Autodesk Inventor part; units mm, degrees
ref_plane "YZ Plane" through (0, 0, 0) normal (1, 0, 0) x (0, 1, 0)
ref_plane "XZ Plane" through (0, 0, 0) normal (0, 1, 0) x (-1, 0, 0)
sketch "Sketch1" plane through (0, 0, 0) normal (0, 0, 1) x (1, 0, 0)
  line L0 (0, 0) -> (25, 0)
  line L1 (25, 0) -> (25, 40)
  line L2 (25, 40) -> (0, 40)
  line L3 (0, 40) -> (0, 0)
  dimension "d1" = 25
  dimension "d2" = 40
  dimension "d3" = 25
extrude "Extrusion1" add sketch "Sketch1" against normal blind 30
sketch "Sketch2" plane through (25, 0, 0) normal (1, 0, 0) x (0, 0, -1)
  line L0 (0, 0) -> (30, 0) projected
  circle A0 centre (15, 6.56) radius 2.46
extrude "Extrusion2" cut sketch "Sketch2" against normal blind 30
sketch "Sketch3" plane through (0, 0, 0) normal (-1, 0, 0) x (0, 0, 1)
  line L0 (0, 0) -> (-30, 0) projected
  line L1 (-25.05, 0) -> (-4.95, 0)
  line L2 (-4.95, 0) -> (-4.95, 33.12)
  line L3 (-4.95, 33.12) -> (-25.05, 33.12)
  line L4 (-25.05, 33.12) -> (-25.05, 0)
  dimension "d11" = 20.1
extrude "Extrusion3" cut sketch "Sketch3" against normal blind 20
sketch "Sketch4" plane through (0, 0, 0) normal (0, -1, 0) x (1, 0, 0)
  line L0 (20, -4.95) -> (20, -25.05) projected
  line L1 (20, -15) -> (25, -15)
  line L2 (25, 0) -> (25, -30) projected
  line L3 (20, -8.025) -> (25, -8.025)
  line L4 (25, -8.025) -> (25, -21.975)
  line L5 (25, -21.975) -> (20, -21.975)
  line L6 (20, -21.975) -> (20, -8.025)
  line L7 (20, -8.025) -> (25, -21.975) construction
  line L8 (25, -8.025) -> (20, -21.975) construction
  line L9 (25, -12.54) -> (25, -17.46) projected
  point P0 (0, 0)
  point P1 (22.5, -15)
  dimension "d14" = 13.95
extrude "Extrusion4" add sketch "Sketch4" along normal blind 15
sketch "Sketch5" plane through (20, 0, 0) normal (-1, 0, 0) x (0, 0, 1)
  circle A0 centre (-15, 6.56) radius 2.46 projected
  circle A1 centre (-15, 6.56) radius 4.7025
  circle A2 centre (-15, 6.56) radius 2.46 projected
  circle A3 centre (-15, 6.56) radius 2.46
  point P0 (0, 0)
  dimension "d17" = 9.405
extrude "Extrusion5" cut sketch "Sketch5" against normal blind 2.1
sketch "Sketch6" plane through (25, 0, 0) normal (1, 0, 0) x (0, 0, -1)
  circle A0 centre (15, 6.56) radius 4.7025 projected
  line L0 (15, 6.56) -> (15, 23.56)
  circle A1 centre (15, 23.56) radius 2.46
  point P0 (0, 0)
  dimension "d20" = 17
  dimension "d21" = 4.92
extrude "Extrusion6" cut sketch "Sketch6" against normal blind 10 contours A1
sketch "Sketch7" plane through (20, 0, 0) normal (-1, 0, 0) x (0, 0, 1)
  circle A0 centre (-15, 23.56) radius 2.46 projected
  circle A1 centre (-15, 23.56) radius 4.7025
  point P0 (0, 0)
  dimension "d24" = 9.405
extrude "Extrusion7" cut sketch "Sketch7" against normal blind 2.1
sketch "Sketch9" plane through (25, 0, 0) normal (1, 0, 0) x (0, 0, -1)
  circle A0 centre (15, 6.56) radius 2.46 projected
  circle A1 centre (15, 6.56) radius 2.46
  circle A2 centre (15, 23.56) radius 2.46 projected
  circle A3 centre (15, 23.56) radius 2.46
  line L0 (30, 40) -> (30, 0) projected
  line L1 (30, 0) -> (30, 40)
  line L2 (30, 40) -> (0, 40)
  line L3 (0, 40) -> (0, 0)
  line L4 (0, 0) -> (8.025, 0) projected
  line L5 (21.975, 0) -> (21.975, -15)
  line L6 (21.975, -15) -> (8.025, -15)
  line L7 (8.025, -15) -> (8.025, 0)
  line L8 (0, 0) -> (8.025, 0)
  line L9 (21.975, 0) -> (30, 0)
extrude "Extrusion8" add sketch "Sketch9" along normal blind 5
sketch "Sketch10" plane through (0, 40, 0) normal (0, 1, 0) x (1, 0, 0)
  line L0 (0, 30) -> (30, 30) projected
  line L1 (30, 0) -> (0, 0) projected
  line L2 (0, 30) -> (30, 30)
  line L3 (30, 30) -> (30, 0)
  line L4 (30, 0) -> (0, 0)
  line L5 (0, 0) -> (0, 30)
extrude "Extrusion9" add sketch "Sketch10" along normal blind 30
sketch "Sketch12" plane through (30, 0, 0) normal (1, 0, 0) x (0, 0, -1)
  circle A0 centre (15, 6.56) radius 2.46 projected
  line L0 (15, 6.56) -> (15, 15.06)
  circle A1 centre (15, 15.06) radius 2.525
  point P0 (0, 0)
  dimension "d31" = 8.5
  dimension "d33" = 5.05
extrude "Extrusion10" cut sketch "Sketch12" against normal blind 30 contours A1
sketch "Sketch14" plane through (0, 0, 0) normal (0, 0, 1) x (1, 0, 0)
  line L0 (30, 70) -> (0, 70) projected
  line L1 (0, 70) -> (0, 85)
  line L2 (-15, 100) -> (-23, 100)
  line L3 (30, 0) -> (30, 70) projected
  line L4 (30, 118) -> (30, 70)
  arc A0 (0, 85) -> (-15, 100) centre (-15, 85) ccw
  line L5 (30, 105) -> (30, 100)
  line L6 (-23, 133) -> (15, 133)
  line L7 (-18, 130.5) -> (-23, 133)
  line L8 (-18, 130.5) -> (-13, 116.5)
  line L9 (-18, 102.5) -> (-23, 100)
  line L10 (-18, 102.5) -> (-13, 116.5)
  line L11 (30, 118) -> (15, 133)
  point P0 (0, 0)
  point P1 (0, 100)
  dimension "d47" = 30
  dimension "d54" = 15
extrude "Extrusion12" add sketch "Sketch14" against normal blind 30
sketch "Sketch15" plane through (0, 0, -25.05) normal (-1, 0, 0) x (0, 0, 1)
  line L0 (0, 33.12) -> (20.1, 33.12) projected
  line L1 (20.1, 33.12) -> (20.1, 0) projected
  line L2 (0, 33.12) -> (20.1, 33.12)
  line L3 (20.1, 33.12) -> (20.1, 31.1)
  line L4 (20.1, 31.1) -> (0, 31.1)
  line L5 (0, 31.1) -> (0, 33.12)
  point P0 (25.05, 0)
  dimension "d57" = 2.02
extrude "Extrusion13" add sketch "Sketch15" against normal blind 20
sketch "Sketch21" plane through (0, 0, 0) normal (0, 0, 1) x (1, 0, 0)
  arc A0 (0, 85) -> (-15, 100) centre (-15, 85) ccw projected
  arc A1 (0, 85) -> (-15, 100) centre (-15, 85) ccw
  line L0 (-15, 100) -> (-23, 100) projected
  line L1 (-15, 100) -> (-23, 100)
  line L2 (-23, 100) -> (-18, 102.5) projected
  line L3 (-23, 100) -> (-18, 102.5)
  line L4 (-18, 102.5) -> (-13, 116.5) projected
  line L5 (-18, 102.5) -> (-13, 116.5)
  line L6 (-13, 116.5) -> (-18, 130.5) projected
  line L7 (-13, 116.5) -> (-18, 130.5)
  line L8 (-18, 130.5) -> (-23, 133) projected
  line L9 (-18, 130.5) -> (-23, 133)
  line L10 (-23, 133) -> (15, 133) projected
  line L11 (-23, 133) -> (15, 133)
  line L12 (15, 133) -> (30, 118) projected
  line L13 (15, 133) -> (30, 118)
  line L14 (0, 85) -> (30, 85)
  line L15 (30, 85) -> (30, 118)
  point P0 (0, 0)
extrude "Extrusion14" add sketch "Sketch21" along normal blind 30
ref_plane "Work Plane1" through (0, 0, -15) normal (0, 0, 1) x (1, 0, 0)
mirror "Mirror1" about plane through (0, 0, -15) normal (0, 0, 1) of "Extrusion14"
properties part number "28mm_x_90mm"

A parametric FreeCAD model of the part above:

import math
import FreeCAD as App
import Part
import Sketcher
from FreeCAD import Vector
Q = App.Units.Quantity


def add_polygon(sketch, points):
    """Adds a closed chain of lines whose ends are joined by coincident constraints."""
    first, n = sketch.GeometryCount, len(points)
    for a, b in zip(points, points[1:] + points[:1]):
        sketch.addGeometry(Part.LineSegment(App.Vector(*a, 0), App.Vector(*b, 0)), False)
    for i in range(n):
        sketch.addConstraint(Sketcher.Constraint("Coincident", first + i, 2, first + (i + 1) % n, 1))

doc = App.newDocument("Part")
body = doc.addObject("PartDesign::Body", "Body")

# Sketch on XY plane
sketch1 = body.newObject("Sketcher::SketchObject", "Sketch")
sketch1.AttachmentSupport = (doc.getObject("XY_Plane"), [""])
sketch1.MapMode = "FlatFace"
add_polygon(sketch1, [(0, 40), (0, 0), (25, 0), (25, 40)])  # lines 0-3
sketch1.addConstraint(Sketcher.Constraint("Vertical", 0))
sketch1.addConstraint(Sketcher.Constraint("Horizontal", 1))
sketch1.addConstraint(Sketcher.Constraint("Vertical", 2))
sketch1.addConstraint(Sketcher.Constraint("Horizontal", 3))
sketch1.addConstraint(Sketcher.Constraint("Coincident", 0, 2, -1, 1))
sketch1.addConstraint(Sketcher.Constraint("DistanceX", 1, 1, 1, 2, Q("25 mm")))
sketch1.addConstraint(Sketcher.Constraint("DistanceY", 0, 2, 0, 1, Q("40 mm")))
pad1 = body.newObject("PartDesign::Pad", "Pad")
pad1.Profile = sketch1
pad1.Length = 30
pad1.Reversed = True

# Sketch on YZ plane
sketch2 = body.newObject("Sketcher::SketchObject", "Sketch001")
sketch2.AttachmentSupport = (doc.getObject("YZ_Plane"), [""])
sketch2.MapMode = "FlatFace"
sketch2.AttachmentOffset = App.Placement(Vector(0, 0, 25), App.Rotation())
sketch2.addGeometry(Part.Circle(Vector(6.6, -15, 0), Vector(0, 0, 1), 2.5), False)
sketch2.addConstraint(Sketcher.Constraint("Diameter", 0, Q("4.92 mm")))
sketch2.addConstraint(Sketcher.Constraint("DistanceY", 0, 3, -1, 1, Q("15 mm")))
sketch2.addConstraint(Sketcher.Constraint("DistanceX", -1, 1, 0, 3, Q("6.56 mm")))
pocket1 = body.newObject("PartDesign::Pocket", "Pocket")
pocket1.Profile = sketch2
pocket1.Length = 30

# Sketch on YZ plane
sketch3 = body.newObject("Sketcher::SketchObject", "Sketch002")
sketch3.AttachmentSupport = (doc.getObject("YZ_Plane"), [""])
sketch3.MapMode = "FlatFace"
add_polygon(sketch3, [(0, -25), (0, -5), (33, -5), (33, -25)])  # lines 0-3
sketch3.addConstraint(Sketcher.Constraint("Vertical", 0))
sketch3.addConstraint(Sketcher.Constraint("Horizontal", 1))
sketch3.addConstraint(Sketcher.Constraint("Vertical", 2))
sketch3.addConstraint(Sketcher.Constraint("Horizontal", 3))
sketch3.addConstraint(Sketcher.Constraint("PointOnObject", 0, 2, -2))
sketch3.addConstraint(Sketcher.Constraint("DistanceY", 0, 1, 0, 2, Q("20.1 mm")))
sketch3.addConstraint(Sketcher.Constraint("DistanceX", 1, 1, 1, 2, Q("33.12 mm")))
sketch3.addConstraint(Sketcher.Constraint("DistanceY", 0, 2, -1, 1, Q("4.95 mm")))
pocket2 = body.newObject("PartDesign::Pocket", "Pocket001")
pocket2.Profile = sketch3
pocket2.Length = 20
pocket2.Reversed = True

# Sketch on XZ plane
sketch4 = body.newObject("Sketcher::SketchObject", "Sketch003")
sketch4.AttachmentSupport = (doc.getObject("XZ_Plane"), [""])
sketch4.MapMode = "FlatFace"
add_polygon(sketch4, [(25, -8), (20, -8), (20, -22), (25, -22)])  # lines 0-3
sketch4.addConstraint(Sketcher.Constraint("Horizontal", 0))
sketch4.addConstraint(Sketcher.Constraint("Vertical", 1))
sketch4.addConstraint(Sketcher.Constraint("Horizontal", 2))
sketch4.addConstraint(Sketcher.Constraint("Vertical", 3))
sketch4.addConstraint(Sketcher.Constraint("DistanceY", 1, 2, 1, 1, Q("13.95 mm")))
sketch4.addConstraint(Sketcher.Constraint("DistanceX", 0, 2, 0, 1, Q("5 mm")))
sketch4.addConstraint(Sketcher.Constraint("DistanceX", -1, 1, 0, 2, Q("20 mm")))
sketch4.addConstraint(Sketcher.Constraint("DistanceY", 0, 2, -1, 1, Q("8.025 mm")))
pad2 = body.newObject("PartDesign::Pad", "Pad001")
pad2.Profile = sketch4
pad2.Length = 15

# Sketch on YZ plane
sketch5 = body.newObject("Sketcher::SketchObject", "Sketch004")
sketch5.AttachmentSupport = (doc.getObject("YZ_Plane"), [""])
sketch5.MapMode = "FlatFace"
sketch5.AttachmentOffset = App.Placement(Vector(0, 0, 20), App.Rotation())
sketch5.addGeometry(Part.Circle(Vector(6.6, -15, 0), Vector(0, 0, 1), 4.7), False)
sketch5.addGeometry(Part.Circle(Vector(6.6, -15, 0), Vector(0, 0, 1), 2.5), False)
sketch5.addConstraint(Sketcher.Constraint("Coincident", 1, 3, 0, 3))
sketch5.addConstraint(Sketcher.Constraint("Diameter", 0, Q("9.405 mm")))
sketch5.addConstraint(Sketcher.Constraint("Diameter", 1, Q("4.92 mm")))
sketch5.addConstraint(Sketcher.Constraint("DistanceY", 0, 3, -1, 1, Q("15 mm")))
sketch5.addConstraint(Sketcher.Constraint("DistanceX", -1, 1, 0, 3, Q("6.56 mm")))
pocket3 = body.newObject("PartDesign::Pocket", "Pocket002")
pocket3.Profile = sketch5
pocket3.Length = 2.1
pocket3.Reversed = True

# Sketch on YZ plane
sketch6 = body.newObject("Sketcher::SketchObject", "Sketch005")
sketch6.AttachmentSupport = (doc.getObject("YZ_Plane"), [""])
sketch6.MapMode = "FlatFace"
sketch6.AttachmentOffset = App.Placement(Vector(0, 0, 25), App.Rotation())
sketch6.addGeometry(Part.Circle(Vector(23.6, -15, 0), Vector(0, 0, 1), 2.5), False)
sketch6.addConstraint(Sketcher.Constraint("Diameter", 0, Q("4.92 mm")))
sketch6.addConstraint(Sketcher.Constraint("DistanceY", 0, 3, -1, 1, Q("15 mm")))
sketch6.addConstraint(Sketcher.Constraint("DistanceX", -1, 1, 0, 3, Q("23.56 mm")))
pocket4 = body.newObject("PartDesign::Pocket", "Pocket003")
pocket4.Profile = sketch6
pocket4.Length = 10

# Sketch on YZ plane
sketch7 = body.newObject("Sketcher::SketchObject", "Sketch006")
sketch7.AttachmentSupport = (doc.getObject("YZ_Plane"), [""])
sketch7.MapMode = "FlatFace"
sketch7.AttachmentOffset = App.Placement(Vector(0, 0, 20), App.Rotation())
sketch7.addGeometry(Part.Circle(Vector(23.6, -15, 0), Vector(0, 0, 1), 4.7), False)
sketch7.addGeometry(Part.Circle(Vector(23.6, -15, 0), Vector(0, 0, 1), 2.5), False)
sketch7.addConstraint(Sketcher.Constraint("Coincident", 1, 3, 0, 3))
sketch7.addConstraint(Sketcher.Constraint("Diameter", 0, Q("9.405 mm")))
sketch7.addConstraint(Sketcher.Constraint("Diameter", 1, Q("4.92 mm")))
sketch7.addConstraint(Sketcher.Constraint("DistanceY", 0, 3, -1, 1, Q("15 mm")))
sketch7.addConstraint(Sketcher.Constraint("DistanceX", -1, 1, 0, 3, Q("23.56 mm")))
pocket5 = body.newObject("PartDesign::Pocket", "Pocket004")
pocket5.Profile = sketch7
pocket5.Length = 2.1
pocket5.Reversed = True

# Sketch on YZ plane
sketch8 = body.newObject("Sketcher::SketchObject", "Sketch007")
sketch8.AttachmentSupport = (doc.getObject("YZ_Plane"), [""])
sketch8.MapMode = "FlatFace"
sketch8.AttachmentOffset = App.Placement(Vector(0, 0, 25), App.Rotation())
add_polygon(sketch8, [(0, -30), (40, -30), (40, 0), (0, 0), (0, -8), (-15, -8), (-15, -22), (0, -22)])  # lines 0-7
sketch8.addGeometry(Part.Circle(Vector(6.6, -15, 0), Vector(0, 0, 1), 2.5), False)  # 8
sketch8.addGeometry(Part.Circle(Vector(23.6, -15, 0), Vector(0, 0, 1), 2.5), False)  # 9
sketch8.addConstraint(Sketcher.Constraint("Horizontal", 0))
sketch8.addConstraint(Sketcher.Constraint("Vertical", 1))
sketch8.addConstraint(Sketcher.Constraint("Horizontal", 2))
sketch8.addConstraint(Sketcher.Constraint("Vertical", 3))
sketch8.addConstraint(Sketcher.Constraint("Horizontal", 4))
sketch8.addConstraint(Sketcher.Constraint("Vertical", 5))
sketch8.addConstraint(Sketcher.Constraint("Horizontal", 6))
sketch8.addConstraint(Sketcher.Constraint("Vertical", 7))
sketch8.addConstraint(Sketcher.Constraint("Coincident", 2, 2, -1, 1))
sketch8.addConstraint(Sketcher.Constraint("Equal", 8, 9))
sketch8.addConstraint(Sketcher.Constraint("PointOnObject", 6, 2, -2))
sketch8.addConstraint(Sketcher.Constraint("Horizontal", 8, 3, 9, 3))
sketch8.addConstraint(Sketcher.Constraint("Equal", 3, 7))
sketch8.addConstraint(Sketcher.Constraint("Diameter", 8, Q("4.92 mm")))
sketch8.addConstraint(Sketcher.Constraint("DistanceX", 0, 1, 0, 2, Q("40 mm")))
sketch8.addConstraint(Sketcher.Constraint("DistanceX", 4, 2, 4, 1, Q("15 mm")))
sketch8.addConstraint(Sketcher.Constraint("DistanceY", 1, 1, 1, 2, Q("30 mm")))
sketch8.addConstraint(Sketcher.Constraint("DistanceY", 8, 3, -1, 1, Q("15 mm")))
sketch8.addConstraint(Sketcher.Constraint("DistanceX", 8, 3, 9, 3, Q("17 mm")))
sketch8.addConstraint(Sketcher.Constraint("DistanceY", 5, 2, 5, 1, Q("13.95 mm")))
sketch8.addConstraint(Sketcher.Constraint("DistanceX", -1, 1, 8, 3, Q("6.56 mm")))
pad3 = body.newObject("PartDesign::Pad", "Pad002")
pad3.Profile = sketch8
pad3.Length = 5

# Sketch on XZ plane
sketch9 = body.newObject("Sketcher::SketchObject", "Sketch008")
sketch9.AttachmentSupport = (doc.getObject("XZ_Plane"), [""])
sketch9.MapMode = "FlatFace"
sketch9.AttachmentOffset = App.Placement(Vector(0, 0, -40), App.Rotation())
add_polygon(sketch9, [(30, -30), (0, -30), (0, 0), (30, 0)])  # lines 0-3
sketch9.addConstraint(Sketcher.Constraint("Horizontal", 0))
sketch9.addConstraint(Sketcher.Constraint("Vertical", 1))
sketch9.addConstraint(Sketcher.Constraint("Horizontal", 2))
sketch9.addConstraint(Sketcher.Constraint("Vertical", 3))
sketch9.addConstraint(Sketcher.Constraint("Coincident", 1, 2, -1, 1))
sketch9.addConstraint(Sketcher.Constraint("Equal", 2, 1))
sketch9.addConstraint(Sketcher.Constraint("DistanceX", 0, 2, 0, 1, Q("30 mm")))
pad4 = body.newObject("PartDesign::Pad", "Pad003")
pad4.Profile = sketch9
pad4.Length = 30
pad4.Reversed = True

# Sketch on YZ plane
sketch10 = body.newObject("Sketcher::SketchObject", "Sketch009")
sketch10.AttachmentSupport = (doc.getObject("YZ_Plane"), [""])
sketch10.MapMode = "FlatFace"
sketch10.AttachmentOffset = App.Placement(Vector(0, 0, 30), App.Rotation())
sketch10.addGeometry(Part.Circle(Vector(15.1, -15, 0), Vector(0, 0, 1), 2.5), False)
sketch10.addConstraint(Sketcher.Constraint("Diameter", 0, Q("5.05 mm")))
sketch10.addConstraint(Sketcher.Constraint("DistanceY", 0, 3, -1, 1, Q("15 mm")))
sketch10.addConstraint(Sketcher.Constraint("DistanceX", -1, 1, 0, 3, Q("15.06 mm")))
pocket6 = body.newObject("PartDesign::Pocket", "Pocket005")
pocket6.Profile = sketch10
pocket6.Length = 30

# Sketch on XY plane
sketch11 = body.newObject("Sketcher::SketchObject", "Sketch010")
sketch11.AttachmentSupport = (doc.getObject("XY_Plane"), [""])
sketch11.MapMode = "FlatFace"
sketch11.addGeometry(Part.LineSegment(Vector(0, 70, 0), Vector(30, 70, 0)), False)
sketch11.addGeometry(Part.LineSegment(Vector(30, 70, 0), Vector(30, 118, 0)), False)
sketch11.addGeometry(Part.LineSegment(Vector(30, 118, 0), Vector(15, 133, 0)), False)
sketch11.addGeometry(Part.LineSegment(Vector(15, 133, 0), Vector(-23, 133, 0)), False)
sketch11.addGeometry(Part.LineSegment(Vector(-23, 133, 0), Vector(-18, 130, 0)), False)
sketch11.addGeometry(Part.LineSegment(Vector(-18, 130, 0), Vector(-13, 116, 0)), False)
sketch11.addGeometry(Part.LineSegment(Vector(-13, 116, 0), Vector(-18, 102, 0)), False)
sketch11.addGeometry(Part.LineSegment(Vector(-18, 102, 0), Vector(-23, 100, 0)), False)
sketch11.addGeometry(Part.LineSegment(Vector(-23, 100, 0), Vector(-15, 100, 0)), False)
sketch11.addGeometry(Part.ArcOfCircle(Part.Circle(Vector(-15, 85, 0), Vector(0, 0, 1), 15), math.radians(0), math.radians(90)), False)
sketch11.addGeometry(Part.LineSegment(Vector(0, 85, 0), Vector(0, 70, 0)), False)
sketch11.addConstraint(Sketcher.Constraint("Coincident", 0, 2, 1, 1))
sketch11.addConstraint(Sketcher.Constraint("Coincident", 1, 2, 2, 1))
sketch11.addConstraint(Sketcher.Constraint("Coincident", 2, 2, 3, 1))
sketch11.addConstraint(Sketcher.Constraint("Coincident", 3, 2, 4, 1))
sketch11.addConstraint(Sketcher.Constraint("Coincident", 4, 2, 5, 1))
sketch11.addConstraint(Sketcher.Constraint("Coincident", 5, 2, 6, 1))
sketch11.addConstraint(Sketcher.Constraint("Coincident", 6, 2, 7, 1))
sketch11.addConstraint(Sketcher.Constraint("Coincident", 7, 2, 8, 1))
sketch11.addConstraint(Sketcher.Constraint("Tangent", 8, 2, 9, 2))
sketch11.addConstraint(Sketcher.Constraint("Tangent", 9, 1, 10, 1))
sketch11.addConstraint(Sketcher.Constraint("Coincident", 10, 2, 0, 1))
sketch11.addConstraint(Sketcher.Constraint("Horizontal", 0))
sketch11.addConstraint(Sketcher.Constraint("Vertical", 1))
sketch11.addConstraint(Sketcher.Constraint("Horizontal", 3))
sketch11.addConstraint(Sketcher.Constraint("Horizontal", 8))
sketch11.addConstraint(Sketcher.Constraint("Vertical", 10))
sketch11.addConstraint(Sketcher.Constraint("PointOnObject", 9, 1, -2))
sketch11.addConstraint(Sketcher.Constraint("Vertical", 4, 2, 6, 2))
sketch11.addConstraint(Sketcher.Constraint("Vertical", 3, 2, 7, 2))
sketch11.addConstraint(Sketcher.Constraint("Equal", 5, 6))
sketch11.addConstraint(Sketcher.Constraint("Equal", 4, 7))
sketch11.addConstraint(Sketcher.Constraint("Radius", 9, Q("15 mm")))
sketch11.addConstraint(Sketcher.Constraint("DistanceX", 0, 1, 0, 2, Q("30 mm")))
sketch11.addConstraint(Sketcher.Constraint("DistanceY", 10, 2, 10, 1, Q("15 mm")))
sketch11.addConstraint(Sketcher.Constraint("DistanceX", -1, 1, 2, 2, Q("15 mm")))
sketch11.addConstraint(Sketcher.Constraint("DistanceY", 1, 2, 2, 2, Q("15 mm")))
sketch11.addConstraint(Sketcher.Constraint("DistanceX", 3, 2, 3, 1, Q("38 mm")))
sketch11.addConstraint(Sketcher.Constraint("DistanceY", 1, 1, 1, 2, Q("48 mm")))
sketch11.addConstraint(Sketcher.Constraint("DistanceY", -1, 1, 9, 3, Q("85 mm")))
sketch11.addConstraint(Sketcher.Constraint("DistanceX", 4, 2, -1, 1, Q("18 mm")))
sketch11.addConstraint(Sketcher.Constraint("DistanceX", 5, 2, -1, 1, Q("13 mm")))
sketch11.addConstraint(Sketcher.Constraint("DistanceY", 5, 2, 4, 2, Q("14 mm")))
pad5 = body.newObject("PartDesign::Pad", "Pad004")
pad5.Profile = sketch11
pad5.Length = 30
pad5.Reversed = True

# Sketch on YZ plane
sketch12 = body.newObject("Sketcher::SketchObject", "Sketch011")
sketch12.AttachmentSupport = (doc.getObject("YZ_Plane"), [""])
sketch12.MapMode = "FlatFace"
add_polygon(sketch12, [(33.1, -5), (33.1, -25.1), (31.1, -25.1), (31.1, -5)])  # lines 0-3
sketch12.addConstraint(Sketcher.Constraint("Vertical", 0))
sketch12.addConstraint(Sketcher.Constraint("Horizontal", 1))
sketch12.addConstraint(Sketcher.Constraint("Vertical", 2))
sketch12.addConstraint(Sketcher.Constraint("Horizontal", 3))
sketch12.addConstraint(Sketcher.Constraint("DistanceX", 1, 2, 1, 1, Q("2.02 mm")))
sketch12.addConstraint(Sketcher.Constraint("DistanceY", 0, 2, 0, 1, Q("20.1 mm")))
sketch12.addConstraint(Sketcher.Constraint("DistanceX", -1, 1, 1, 2, Q("31.1 mm")))
sketch12.addConstraint(Sketcher.Constraint("DistanceY", 0, 2, -1, 1, Q("25.05 mm")))
pad6 = body.newObject("PartDesign::Pad", "Pad005")
pad6.Profile = sketch12
pad6.Length = 20

# Sketch on XY plane
sketch13 = body.newObject("Sketcher::SketchObject", "Sketch012")
sketch13.AttachmentSupport = (doc.getObject("XY_Plane"), [""])
sketch13.MapMode = "FlatFace"
sketch13.addGeometry(Part.ArcOfCircle(Part.Circle(Vector(-15, 85, 0), Vector(0, 0, 1), 15), math.radians(0), math.radians(90)), False)
sketch13.addGeometry(Part.LineSegment(Vector(0, 85, 0), Vector(30, 85, 0)), False)
sketch13.addGeometry(Part.LineSegment(Vector(30, 85, 0), Vector(30, 118, 0)), False)
sketch13.addGeometry(Part.LineSegment(Vector(30, 118, 0), Vector(15, 133, 0)), False)
sketch13.addGeometry(Part.LineSegment(Vector(15, 133, 0), Vector(-23, 133, 0)), False)
sketch13.addGeometry(Part.LineSegment(Vector(-23, 133, 0), Vector(-18, 130, 0)), False)
sketch13.addGeometry(Part.LineSegment(Vector(-18, 130, 0), Vector(-13, 116, 0)), False)
sketch13.addGeometry(Part.LineSegment(Vector(-13, 116, 0), Vector(-18, 102, 0)), False)
sketch13.addGeometry(Part.LineSegment(Vector(-18, 102, 0), Vector(-23, 100, 0)), False)
sketch13.addGeometry(Part.LineSegment(Vector(-23, 100, 0), Vector(-15, 100, 0)), False)
sketch13.addConstraint(Sketcher.Constraint("Coincident", 0, 1, 1, 1))
sketch13.addConstraint(Sketcher.Constraint("Coincident", 1, 2, 2, 1))
sketch13.addConstraint(Sketcher.Constraint("Coincident", 2, 2, 3, 1))
sketch13.addConstraint(Sketcher.Constraint("Coincident", 3, 2, 4, 1))
sketch13.addConstraint(Sketcher.Constraint("Coincident", 4, 2, 5, 1))
sketch13.addConstraint(Sketcher.Constraint("Coincident", 5, 2, 6, 1))
sketch13.addConstraint(Sketcher.Constraint("Coincident", 6, 2, 7, 1))
sketch13.addConstraint(Sketcher.Constraint("Coincident", 7, 2, 8, 1))
sketch13.addConstraint(Sketcher.Constraint("Coincident", 8, 2, 9, 1))
sketch13.addConstraint(Sketcher.Constraint("Tangent", 9, 2, 0, 2))
sketch13.addConstraint(Sketcher.Constraint("Horizontal", 1))
sketch13.addConstraint(Sketcher.Constraint("Vertical", 2))
sketch13.addConstraint(Sketcher.Constraint("Horizontal", 4))
sketch13.addConstraint(Sketcher.Constraint("Horizontal", 9))
sketch13.addConstraint(Sketcher.Constraint("PointOnObject", 0, 1, -2))
sketch13.addConstraint(Sketcher.Constraint("Vertical", 5, 2, 7, 2))
sketch13.addConstraint(Sketcher.Constraint("Vertical", 4, 2, 8, 2))
sketch13.addConstraint(Sketcher.Constraint("Equal", 6, 7))
sketch13.addConstraint(Sketcher.Constraint("Equal", 5, 8))
sketch13.addConstraint(Sketcher.Constraint("Radius", 0, Q("15 mm")))
sketch13.addConstraint(Sketcher.Constraint("DistanceX", 1, 1, 1, 2, Q("30 mm")))
sketch13.addConstraint(Sketcher.Constraint("DistanceX", 4, 2, 4, 1, Q("38 mm")))
sketch13.addConstraint(Sketcher.Constraint("DistanceX", 9, 1, 9, 2, Q("8 mm")))
sketch13.addConstraint(Sketcher.Constraint("DistanceY", 2, 1, 2, 2, Q("33 mm")))
sketch13.addConstraint(Sketcher.Constraint("Angle", 3, Q("135 deg")))
sketch13.addConstraint(Sketcher.Constraint("DistanceY", -1, 1, 0, 3, Q("85 mm")))
sketch13.addConstraint(Sketcher.Constraint("DistanceY", -1, 1, 0, 1, Q("85 mm")))
sketch13.addConstraint(Sketcher.Constraint("DistanceX", 5, 2, -1, 1, Q("18 mm")))
sketch13.addConstraint(Sketcher.Constraint("DistanceX", 6, 2, -1, 1, Q("13 mm")))
sketch13.addConstraint(Sketcher.Constraint("DistanceY", 6, 2, 5, 2, Q("14 mm")))
pad7 = body.newObject("PartDesign::Pad", "Pad006")
pad7.Profile = sketch13
pad7.Length = 30
doc.recompute()

datumplane = body.newObject("PartDesign::Plane", "DatumPlane")
datumplane.AttachmentSupport = (doc.getObject("XY_Plane"), [""])
datumplane.MapMode = "FlatFace"
datumplane.AttachmentOffset = App.Placement(Vector(0, 0, -15), App.Rotation())
mirrored = body.newObject("PartDesign::Mirrored", "Mirrored")
mirrored.Originals = [pad7]
mirrored.MirrorPlane = (datumplane, [""])
body.Tip = mirrored

doc.recompute()
